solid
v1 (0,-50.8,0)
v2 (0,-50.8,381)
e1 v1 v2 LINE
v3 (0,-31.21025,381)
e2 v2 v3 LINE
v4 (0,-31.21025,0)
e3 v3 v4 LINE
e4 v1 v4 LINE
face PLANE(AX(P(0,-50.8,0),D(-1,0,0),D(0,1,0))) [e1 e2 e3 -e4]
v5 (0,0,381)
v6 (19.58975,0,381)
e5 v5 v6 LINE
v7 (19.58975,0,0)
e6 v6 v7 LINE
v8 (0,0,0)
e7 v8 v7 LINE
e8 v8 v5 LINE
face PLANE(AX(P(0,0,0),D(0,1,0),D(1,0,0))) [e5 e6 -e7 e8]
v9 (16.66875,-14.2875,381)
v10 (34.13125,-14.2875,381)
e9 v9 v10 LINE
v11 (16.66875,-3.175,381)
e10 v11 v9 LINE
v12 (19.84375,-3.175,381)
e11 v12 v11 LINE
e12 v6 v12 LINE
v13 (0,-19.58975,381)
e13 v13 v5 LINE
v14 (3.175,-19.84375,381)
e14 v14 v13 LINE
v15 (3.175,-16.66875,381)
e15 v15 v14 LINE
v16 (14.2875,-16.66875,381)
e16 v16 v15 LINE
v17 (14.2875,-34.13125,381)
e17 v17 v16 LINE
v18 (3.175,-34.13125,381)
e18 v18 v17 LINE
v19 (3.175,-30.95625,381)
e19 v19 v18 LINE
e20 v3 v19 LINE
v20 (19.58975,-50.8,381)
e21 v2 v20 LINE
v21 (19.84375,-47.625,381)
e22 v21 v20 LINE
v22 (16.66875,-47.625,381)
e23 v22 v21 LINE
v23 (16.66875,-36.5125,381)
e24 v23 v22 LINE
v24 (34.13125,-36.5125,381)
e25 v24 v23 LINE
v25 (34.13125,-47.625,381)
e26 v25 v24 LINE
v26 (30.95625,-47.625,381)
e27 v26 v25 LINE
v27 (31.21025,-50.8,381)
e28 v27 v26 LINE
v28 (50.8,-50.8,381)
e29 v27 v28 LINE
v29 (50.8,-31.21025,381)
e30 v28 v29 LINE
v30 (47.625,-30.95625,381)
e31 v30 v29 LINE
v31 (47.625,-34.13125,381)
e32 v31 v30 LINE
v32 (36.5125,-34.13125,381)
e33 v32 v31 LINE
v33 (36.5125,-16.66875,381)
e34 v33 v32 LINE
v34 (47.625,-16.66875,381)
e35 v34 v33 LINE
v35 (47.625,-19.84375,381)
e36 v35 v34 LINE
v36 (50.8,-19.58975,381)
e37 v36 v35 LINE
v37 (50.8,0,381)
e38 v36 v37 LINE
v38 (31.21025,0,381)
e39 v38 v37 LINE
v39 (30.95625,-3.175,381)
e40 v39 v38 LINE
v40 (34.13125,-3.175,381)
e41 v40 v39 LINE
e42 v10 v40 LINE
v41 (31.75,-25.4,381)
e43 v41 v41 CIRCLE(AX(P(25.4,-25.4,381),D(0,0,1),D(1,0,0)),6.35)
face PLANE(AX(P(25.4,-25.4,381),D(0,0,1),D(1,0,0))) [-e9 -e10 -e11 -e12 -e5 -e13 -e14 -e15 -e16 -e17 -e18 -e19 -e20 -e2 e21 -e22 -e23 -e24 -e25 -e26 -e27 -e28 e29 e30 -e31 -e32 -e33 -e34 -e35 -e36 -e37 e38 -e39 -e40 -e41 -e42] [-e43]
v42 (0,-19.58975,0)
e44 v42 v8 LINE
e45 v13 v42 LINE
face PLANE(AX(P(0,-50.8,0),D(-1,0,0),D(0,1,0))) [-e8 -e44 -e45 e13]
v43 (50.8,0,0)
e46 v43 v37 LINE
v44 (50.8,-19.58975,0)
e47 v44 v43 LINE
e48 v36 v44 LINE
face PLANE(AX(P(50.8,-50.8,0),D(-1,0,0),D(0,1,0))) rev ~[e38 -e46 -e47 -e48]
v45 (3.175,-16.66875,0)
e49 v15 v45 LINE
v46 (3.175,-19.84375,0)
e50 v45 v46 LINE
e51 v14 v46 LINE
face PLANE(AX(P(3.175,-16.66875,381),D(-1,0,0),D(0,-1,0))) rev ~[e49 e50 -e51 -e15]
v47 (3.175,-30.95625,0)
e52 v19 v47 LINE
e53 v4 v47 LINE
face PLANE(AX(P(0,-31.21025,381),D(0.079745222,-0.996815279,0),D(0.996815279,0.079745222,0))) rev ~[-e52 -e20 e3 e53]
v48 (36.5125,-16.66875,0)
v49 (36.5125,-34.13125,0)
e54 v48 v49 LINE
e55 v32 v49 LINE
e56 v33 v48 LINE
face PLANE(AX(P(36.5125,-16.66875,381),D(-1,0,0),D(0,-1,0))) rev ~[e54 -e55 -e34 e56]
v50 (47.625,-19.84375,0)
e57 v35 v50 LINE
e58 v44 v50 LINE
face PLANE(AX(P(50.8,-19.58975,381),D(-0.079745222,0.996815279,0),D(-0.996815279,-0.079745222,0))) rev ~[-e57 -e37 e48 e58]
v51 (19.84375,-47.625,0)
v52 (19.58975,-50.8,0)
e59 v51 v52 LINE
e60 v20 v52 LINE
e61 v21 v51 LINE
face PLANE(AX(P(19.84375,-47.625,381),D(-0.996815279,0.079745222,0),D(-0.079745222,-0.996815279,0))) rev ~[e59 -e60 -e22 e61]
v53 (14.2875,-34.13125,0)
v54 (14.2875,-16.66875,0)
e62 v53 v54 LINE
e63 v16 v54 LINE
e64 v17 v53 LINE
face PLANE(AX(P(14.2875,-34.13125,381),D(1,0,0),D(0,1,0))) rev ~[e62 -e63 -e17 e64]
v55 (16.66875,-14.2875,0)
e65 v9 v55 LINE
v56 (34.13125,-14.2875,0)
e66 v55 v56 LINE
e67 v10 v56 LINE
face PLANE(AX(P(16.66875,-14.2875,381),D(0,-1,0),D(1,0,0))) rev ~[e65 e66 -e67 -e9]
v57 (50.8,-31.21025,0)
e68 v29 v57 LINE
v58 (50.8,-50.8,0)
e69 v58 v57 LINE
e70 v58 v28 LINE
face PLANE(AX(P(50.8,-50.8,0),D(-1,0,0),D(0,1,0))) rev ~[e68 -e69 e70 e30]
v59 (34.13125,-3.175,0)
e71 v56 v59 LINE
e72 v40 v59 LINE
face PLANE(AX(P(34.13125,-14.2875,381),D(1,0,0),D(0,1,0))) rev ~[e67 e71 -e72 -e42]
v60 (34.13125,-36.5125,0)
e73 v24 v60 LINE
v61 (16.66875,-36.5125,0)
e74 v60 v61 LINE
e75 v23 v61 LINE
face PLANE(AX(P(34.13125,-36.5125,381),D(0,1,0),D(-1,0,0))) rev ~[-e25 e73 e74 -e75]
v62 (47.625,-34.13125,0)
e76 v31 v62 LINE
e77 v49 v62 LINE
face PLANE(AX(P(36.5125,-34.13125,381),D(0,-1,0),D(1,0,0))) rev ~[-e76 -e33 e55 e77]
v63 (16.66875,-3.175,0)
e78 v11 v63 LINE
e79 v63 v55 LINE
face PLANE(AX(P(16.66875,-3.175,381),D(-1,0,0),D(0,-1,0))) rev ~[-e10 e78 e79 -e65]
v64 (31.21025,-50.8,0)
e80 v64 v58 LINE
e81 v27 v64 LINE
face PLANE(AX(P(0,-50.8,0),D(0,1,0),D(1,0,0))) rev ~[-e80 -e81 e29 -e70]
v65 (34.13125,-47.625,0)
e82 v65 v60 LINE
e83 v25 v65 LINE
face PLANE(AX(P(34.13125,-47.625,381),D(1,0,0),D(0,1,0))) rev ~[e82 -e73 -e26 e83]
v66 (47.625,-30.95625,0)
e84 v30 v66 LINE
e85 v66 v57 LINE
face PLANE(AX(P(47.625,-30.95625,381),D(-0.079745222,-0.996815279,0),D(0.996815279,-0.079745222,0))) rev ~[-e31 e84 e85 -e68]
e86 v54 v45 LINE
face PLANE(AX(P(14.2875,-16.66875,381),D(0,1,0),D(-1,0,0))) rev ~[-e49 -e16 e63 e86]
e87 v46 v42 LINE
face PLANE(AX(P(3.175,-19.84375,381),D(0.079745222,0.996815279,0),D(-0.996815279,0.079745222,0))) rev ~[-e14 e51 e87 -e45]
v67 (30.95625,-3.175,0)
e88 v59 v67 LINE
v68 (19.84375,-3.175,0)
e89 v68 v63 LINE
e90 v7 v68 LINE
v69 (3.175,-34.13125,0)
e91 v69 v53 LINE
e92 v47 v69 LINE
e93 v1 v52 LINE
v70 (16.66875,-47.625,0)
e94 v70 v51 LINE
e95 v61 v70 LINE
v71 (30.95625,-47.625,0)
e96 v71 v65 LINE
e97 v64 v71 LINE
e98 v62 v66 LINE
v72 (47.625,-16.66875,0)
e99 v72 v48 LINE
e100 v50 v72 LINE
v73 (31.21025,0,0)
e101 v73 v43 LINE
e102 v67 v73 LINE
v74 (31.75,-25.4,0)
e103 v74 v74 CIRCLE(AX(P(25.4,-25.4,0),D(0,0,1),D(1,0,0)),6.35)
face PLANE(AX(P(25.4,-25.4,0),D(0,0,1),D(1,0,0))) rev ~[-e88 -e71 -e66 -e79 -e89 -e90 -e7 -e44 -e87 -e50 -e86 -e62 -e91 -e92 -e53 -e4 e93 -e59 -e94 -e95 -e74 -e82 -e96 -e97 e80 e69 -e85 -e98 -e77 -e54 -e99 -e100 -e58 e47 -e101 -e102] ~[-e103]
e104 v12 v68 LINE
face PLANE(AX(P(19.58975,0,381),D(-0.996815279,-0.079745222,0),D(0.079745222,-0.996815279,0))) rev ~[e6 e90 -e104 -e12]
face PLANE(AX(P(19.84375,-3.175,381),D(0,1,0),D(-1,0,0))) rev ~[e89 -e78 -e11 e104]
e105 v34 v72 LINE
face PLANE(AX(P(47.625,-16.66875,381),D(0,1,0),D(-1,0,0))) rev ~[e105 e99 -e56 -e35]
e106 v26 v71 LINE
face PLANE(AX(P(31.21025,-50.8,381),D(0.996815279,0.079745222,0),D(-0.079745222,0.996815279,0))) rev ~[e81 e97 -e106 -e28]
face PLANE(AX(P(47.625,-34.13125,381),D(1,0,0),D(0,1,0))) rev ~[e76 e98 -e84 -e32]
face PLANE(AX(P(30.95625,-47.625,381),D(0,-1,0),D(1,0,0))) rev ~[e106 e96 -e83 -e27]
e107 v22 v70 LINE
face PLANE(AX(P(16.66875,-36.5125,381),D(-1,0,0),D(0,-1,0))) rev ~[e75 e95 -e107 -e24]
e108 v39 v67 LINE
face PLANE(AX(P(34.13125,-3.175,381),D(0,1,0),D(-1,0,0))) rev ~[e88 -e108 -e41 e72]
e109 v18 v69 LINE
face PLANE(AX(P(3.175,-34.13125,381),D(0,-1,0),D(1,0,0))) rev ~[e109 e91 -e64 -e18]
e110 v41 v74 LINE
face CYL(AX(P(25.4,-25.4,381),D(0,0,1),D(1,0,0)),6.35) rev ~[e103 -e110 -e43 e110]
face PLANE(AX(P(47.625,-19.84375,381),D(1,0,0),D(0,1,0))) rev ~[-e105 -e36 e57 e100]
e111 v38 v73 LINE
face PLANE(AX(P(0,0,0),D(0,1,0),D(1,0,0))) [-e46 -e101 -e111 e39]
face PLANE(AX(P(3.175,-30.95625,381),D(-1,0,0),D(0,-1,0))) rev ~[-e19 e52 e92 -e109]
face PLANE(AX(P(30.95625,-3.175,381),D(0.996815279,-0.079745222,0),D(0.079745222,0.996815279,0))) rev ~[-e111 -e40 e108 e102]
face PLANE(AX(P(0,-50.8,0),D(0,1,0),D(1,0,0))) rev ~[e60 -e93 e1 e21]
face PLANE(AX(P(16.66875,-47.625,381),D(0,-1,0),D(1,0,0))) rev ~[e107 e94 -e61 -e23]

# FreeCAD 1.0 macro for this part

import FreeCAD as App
import Part
import Sketcher

V = App.Vector
Q = App.Units.Quantity


def add_polygon(sketch, points):
    """Adds a closed chain of lines whose ends are joined by coincident constraints."""
    first, n = sketch.GeometryCount, len(points)
    for a, b in zip(points, points[1:] + points[:1]):
        sketch.addGeometry(Part.LineSegment(App.Vector(*a, 0), App.Vector(*b, 0)), False)
    for i in range(n):
        sketch.addConstraint(Sketcher.Constraint("Coincident", first + i, 2, first + (i + 1) % n, 1))

doc = App.newDocument("Part")
body = doc.addObject("PartDesign::Body", "Body")

# Sketch on XY plane
sketch1 = body.newObject("Sketcher::SketchObject", "Sketch")
sketch1.AttachmentSupport = (doc.getObject("XY_Plane"), [""])
sketch1.MapMode = "FlatFace"
add_polygon(sketch1, [(0, 0), (0, -50.8), (50.8, -50.8), (50.8, 0)])  # lines 0-3
sketch1.addConstraint([
    Sketcher.Constraint("Vertical", 0),
    Sketcher.Constraint("Horizontal", 1),
    Sketcher.Constraint("Vertical", 2),
    Sketcher.Constraint("Horizontal", 3),
    Sketcher.Constraint("Coincident", 3, 2, -1, 1),
    Sketcher.Constraint("Equal", 3, 0),
    Sketcher.Constraint("DistanceX", 1, 1, 1, 2, Q("2 in")),
])
pad1 = body.newObject("PartDesign::Pad", "Pad")
pad1.Profile = sketch1
pad1.Length = Q("15 in")

# Sketch on XY plane
sketch2 = body.newObject("Sketcher::SketchObject", "Sketch001")
sketch2.AttachmentSupport = (doc.getObject("XY_Plane"), [""])
sketch2.MapMode = "FlatFace"
sketch2.AttachmentOffset = App.Placement(V(0, 0, 15 * 25.4), App.Rotation())
sketch2.addGeometry(Part.Circle(V(25.4, -25.4, 0), V(0, 0, 1), 6.35), False)  # 0
add_polygon(sketch2, [(19.84375, -47.625), (19.58975, -50.8), (31.21025, -50.8), (30.95625, -47.625), (34.13125, -47.625), (34.13125, -36.5125), (16.66875, -36.5125), (16.66875, -47.625)])  # lines 1-8
add_polygon(sketch2, [(50.8, -31.21025), (50.8, -19.58975), (47.625, -19.84375), (47.625, -16.66875), (36.5125, -16.66875), (36.5125, -34.13125), (47.625, -34.13125), (47.625, -30.95625)])  # lines 9-16
add_polygon(sketch2, [(3.175, -19.84375), (0, -19.58975), (0, -31.21025), (3.175, -30.95625), (3.175, -34.13125), (14.2875, -34.13125), (14.2875, -16.66875), (3.175, -16.66875)])  # lines 17-24
add_polygon(sketch2, [(19.84375, -3.175), (16.66875, -3.175), (16.66875, -14.2875), (34.13125, -14.2875), (34.13125, -3.175), (30.95625, -3.175), (31.21025, 0), (19.58975, 0)])  # lines 25-32
sketch2.addConstraint([
    Sketcher.Constraint("Horizontal", 2),
    Sketcher.Constraint("Horizontal", 4),
    Sketcher.Constraint("Vertical", 5),
    Sketcher.Constraint("Horizontal", 6),
    Sketcher.Constraint("Vertical", 7),
    Sketcher.Constraint("Horizontal", 8),
    Sketcher.Constraint("Vertical", 9),
    Sketcher.Constraint("Vertical", 11),
    Sketcher.Constraint("Horizontal", 12),
    Sketcher.Constraint("Vertical", 13),
    Sketcher.Constraint("Horizontal", 14),
    Sketcher.Constraint("Vertical", 15),
    Sketcher.Constraint("Vertical", 18),
    Sketcher.Constraint("Vertical", 20),
    Sketcher.Constraint("Horizontal", 21),
    Sketcher.Constraint("Vertical", 22),
    Sketcher.Constraint("Horizontal", 23),
    Sketcher.Constraint("Vertical", 24),
    Sketcher.Constraint("Horizontal", 25),
    Sketcher.Constraint("Vertical", 26),
    Sketcher.Constraint("Horizontal", 27),
    Sketcher.Constraint("Vertical", 28),
    Sketcher.Constraint("Horizontal", 29),
    Sketcher.Constraint("Horizontal", 31),
    Sketcher.Constraint("PointOnObject", 17, 2, -2),
    Sketcher.Constraint("PointOnObject", 30, 2, -1),
    Sketcher.Constraint("Perpendicular", 3, 10),
    Sketcher.Constraint("Perpendicular", 1, 16),
    Sketcher.Constraint("Parallel", 16, 17),
    Sketcher.Constraint("Parallel", 10, 19),
    Sketcher.Constraint("Perpendicular", 17, 30),
    Sketcher.Constraint("Perpendicular", 19, 32),
    Sketcher.Constraint("Horizontal", 4, 2, 7, 2),
    Sketcher.Constraint("Horizontal", 9, 2, 17, 2),
    Sketcher.Constraint("Horizontal", 16, 2, 18, 2),
    Sketcher.Constraint("Horizontal", 15, 2, 19, 2),
    Sketcher.Constraint("Horizontal", 14, 2, 20, 2),
    Sketcher.Constraint("Horizontal", 12, 2, 22, 2),
    Sketcher.Constraint("Horizontal", 10, 2, 24, 2),
    Sketcher.Constraint("Horizontal", 25, 2, 28, 2),
    Sketcher.Constraint("Vertical", 11, 2, 14, 2),
    Sketcher.Constraint("Vertical", 20, 2, 23, 2),
    Sketcher.Constraint("Vertical", 7, 2, 25, 2),
    Sketcher.Constraint("Vertical", 5, 2, 27, 2),
    Sketcher.Constraint("Vertical", 3, 2, 29, 2),
    Sketcher.Constraint("Vertical", 2, 2, 30, 2),
    Sketcher.Constraint("Vertical", 1, 2, 31, 2),
    Sketcher.Constraint("Equal", 4, 8),
    Sketcher.Constraint("Equal", 14, 21),
    Sketcher.Constraint("Equal", 23, 5),
    Sketcher.Constraint("Equal", 31, 9),
    Sketcher.Constraint("Equal", 29, 11),
    Sketcher.Constraint("Equal", 27, 13),
    Sketcher.Constraint("Equal", 11, 15),
    Sketcher.Constraint("Equal", 7, 26),
    Sketcher.Constraint("Diameter", 0, Q("0.5 in")),
    Sketcher.Constraint("DistanceX", -1, 1, 0, 3, Q("1 in")),
    Sketcher.Constraint("DistanceY", 0, 3, -1, 1, Q("1 in")),
    Sketcher.Constraint("DistanceY", 1, 2, -1, 1, Q("2 in")),
    Sketcher.Constraint("DistanceX", -1, 1, 9, 2, Q("2 in")),
    Sketcher.Constraint("DistanceX", 4, 1, 4, 2, Q("0.125 in")),
    Sketcher.Constraint("DistanceX", 6, 2, 6, 1, Q("0.6875 in")),
    Sketcher.Constraint("DistanceX", 12, 2, 12, 1, Q("0.4375 in")),
    Sketcher.Constraint("DistanceX", 3, 2, 2, 2, Q("0.01 in")),
    Sketcher.Constraint("DistanceX", -1, 1, 3, 2, Q("1.21875 in")),
    Sketcher.Constraint("DistanceY", 3, 2, -1, 1, Q("1.875 in")),
    Sketcher.Constraint("DistanceY", 10, 2, -1, 1, Q("0.78125 in")),
])
pocket1 = body.newObject("PartDesign::Pocket", "Pocket")
pocket1.Profile = sketch2
pocket1.Length = Q("20 in")

doc.recompute()
